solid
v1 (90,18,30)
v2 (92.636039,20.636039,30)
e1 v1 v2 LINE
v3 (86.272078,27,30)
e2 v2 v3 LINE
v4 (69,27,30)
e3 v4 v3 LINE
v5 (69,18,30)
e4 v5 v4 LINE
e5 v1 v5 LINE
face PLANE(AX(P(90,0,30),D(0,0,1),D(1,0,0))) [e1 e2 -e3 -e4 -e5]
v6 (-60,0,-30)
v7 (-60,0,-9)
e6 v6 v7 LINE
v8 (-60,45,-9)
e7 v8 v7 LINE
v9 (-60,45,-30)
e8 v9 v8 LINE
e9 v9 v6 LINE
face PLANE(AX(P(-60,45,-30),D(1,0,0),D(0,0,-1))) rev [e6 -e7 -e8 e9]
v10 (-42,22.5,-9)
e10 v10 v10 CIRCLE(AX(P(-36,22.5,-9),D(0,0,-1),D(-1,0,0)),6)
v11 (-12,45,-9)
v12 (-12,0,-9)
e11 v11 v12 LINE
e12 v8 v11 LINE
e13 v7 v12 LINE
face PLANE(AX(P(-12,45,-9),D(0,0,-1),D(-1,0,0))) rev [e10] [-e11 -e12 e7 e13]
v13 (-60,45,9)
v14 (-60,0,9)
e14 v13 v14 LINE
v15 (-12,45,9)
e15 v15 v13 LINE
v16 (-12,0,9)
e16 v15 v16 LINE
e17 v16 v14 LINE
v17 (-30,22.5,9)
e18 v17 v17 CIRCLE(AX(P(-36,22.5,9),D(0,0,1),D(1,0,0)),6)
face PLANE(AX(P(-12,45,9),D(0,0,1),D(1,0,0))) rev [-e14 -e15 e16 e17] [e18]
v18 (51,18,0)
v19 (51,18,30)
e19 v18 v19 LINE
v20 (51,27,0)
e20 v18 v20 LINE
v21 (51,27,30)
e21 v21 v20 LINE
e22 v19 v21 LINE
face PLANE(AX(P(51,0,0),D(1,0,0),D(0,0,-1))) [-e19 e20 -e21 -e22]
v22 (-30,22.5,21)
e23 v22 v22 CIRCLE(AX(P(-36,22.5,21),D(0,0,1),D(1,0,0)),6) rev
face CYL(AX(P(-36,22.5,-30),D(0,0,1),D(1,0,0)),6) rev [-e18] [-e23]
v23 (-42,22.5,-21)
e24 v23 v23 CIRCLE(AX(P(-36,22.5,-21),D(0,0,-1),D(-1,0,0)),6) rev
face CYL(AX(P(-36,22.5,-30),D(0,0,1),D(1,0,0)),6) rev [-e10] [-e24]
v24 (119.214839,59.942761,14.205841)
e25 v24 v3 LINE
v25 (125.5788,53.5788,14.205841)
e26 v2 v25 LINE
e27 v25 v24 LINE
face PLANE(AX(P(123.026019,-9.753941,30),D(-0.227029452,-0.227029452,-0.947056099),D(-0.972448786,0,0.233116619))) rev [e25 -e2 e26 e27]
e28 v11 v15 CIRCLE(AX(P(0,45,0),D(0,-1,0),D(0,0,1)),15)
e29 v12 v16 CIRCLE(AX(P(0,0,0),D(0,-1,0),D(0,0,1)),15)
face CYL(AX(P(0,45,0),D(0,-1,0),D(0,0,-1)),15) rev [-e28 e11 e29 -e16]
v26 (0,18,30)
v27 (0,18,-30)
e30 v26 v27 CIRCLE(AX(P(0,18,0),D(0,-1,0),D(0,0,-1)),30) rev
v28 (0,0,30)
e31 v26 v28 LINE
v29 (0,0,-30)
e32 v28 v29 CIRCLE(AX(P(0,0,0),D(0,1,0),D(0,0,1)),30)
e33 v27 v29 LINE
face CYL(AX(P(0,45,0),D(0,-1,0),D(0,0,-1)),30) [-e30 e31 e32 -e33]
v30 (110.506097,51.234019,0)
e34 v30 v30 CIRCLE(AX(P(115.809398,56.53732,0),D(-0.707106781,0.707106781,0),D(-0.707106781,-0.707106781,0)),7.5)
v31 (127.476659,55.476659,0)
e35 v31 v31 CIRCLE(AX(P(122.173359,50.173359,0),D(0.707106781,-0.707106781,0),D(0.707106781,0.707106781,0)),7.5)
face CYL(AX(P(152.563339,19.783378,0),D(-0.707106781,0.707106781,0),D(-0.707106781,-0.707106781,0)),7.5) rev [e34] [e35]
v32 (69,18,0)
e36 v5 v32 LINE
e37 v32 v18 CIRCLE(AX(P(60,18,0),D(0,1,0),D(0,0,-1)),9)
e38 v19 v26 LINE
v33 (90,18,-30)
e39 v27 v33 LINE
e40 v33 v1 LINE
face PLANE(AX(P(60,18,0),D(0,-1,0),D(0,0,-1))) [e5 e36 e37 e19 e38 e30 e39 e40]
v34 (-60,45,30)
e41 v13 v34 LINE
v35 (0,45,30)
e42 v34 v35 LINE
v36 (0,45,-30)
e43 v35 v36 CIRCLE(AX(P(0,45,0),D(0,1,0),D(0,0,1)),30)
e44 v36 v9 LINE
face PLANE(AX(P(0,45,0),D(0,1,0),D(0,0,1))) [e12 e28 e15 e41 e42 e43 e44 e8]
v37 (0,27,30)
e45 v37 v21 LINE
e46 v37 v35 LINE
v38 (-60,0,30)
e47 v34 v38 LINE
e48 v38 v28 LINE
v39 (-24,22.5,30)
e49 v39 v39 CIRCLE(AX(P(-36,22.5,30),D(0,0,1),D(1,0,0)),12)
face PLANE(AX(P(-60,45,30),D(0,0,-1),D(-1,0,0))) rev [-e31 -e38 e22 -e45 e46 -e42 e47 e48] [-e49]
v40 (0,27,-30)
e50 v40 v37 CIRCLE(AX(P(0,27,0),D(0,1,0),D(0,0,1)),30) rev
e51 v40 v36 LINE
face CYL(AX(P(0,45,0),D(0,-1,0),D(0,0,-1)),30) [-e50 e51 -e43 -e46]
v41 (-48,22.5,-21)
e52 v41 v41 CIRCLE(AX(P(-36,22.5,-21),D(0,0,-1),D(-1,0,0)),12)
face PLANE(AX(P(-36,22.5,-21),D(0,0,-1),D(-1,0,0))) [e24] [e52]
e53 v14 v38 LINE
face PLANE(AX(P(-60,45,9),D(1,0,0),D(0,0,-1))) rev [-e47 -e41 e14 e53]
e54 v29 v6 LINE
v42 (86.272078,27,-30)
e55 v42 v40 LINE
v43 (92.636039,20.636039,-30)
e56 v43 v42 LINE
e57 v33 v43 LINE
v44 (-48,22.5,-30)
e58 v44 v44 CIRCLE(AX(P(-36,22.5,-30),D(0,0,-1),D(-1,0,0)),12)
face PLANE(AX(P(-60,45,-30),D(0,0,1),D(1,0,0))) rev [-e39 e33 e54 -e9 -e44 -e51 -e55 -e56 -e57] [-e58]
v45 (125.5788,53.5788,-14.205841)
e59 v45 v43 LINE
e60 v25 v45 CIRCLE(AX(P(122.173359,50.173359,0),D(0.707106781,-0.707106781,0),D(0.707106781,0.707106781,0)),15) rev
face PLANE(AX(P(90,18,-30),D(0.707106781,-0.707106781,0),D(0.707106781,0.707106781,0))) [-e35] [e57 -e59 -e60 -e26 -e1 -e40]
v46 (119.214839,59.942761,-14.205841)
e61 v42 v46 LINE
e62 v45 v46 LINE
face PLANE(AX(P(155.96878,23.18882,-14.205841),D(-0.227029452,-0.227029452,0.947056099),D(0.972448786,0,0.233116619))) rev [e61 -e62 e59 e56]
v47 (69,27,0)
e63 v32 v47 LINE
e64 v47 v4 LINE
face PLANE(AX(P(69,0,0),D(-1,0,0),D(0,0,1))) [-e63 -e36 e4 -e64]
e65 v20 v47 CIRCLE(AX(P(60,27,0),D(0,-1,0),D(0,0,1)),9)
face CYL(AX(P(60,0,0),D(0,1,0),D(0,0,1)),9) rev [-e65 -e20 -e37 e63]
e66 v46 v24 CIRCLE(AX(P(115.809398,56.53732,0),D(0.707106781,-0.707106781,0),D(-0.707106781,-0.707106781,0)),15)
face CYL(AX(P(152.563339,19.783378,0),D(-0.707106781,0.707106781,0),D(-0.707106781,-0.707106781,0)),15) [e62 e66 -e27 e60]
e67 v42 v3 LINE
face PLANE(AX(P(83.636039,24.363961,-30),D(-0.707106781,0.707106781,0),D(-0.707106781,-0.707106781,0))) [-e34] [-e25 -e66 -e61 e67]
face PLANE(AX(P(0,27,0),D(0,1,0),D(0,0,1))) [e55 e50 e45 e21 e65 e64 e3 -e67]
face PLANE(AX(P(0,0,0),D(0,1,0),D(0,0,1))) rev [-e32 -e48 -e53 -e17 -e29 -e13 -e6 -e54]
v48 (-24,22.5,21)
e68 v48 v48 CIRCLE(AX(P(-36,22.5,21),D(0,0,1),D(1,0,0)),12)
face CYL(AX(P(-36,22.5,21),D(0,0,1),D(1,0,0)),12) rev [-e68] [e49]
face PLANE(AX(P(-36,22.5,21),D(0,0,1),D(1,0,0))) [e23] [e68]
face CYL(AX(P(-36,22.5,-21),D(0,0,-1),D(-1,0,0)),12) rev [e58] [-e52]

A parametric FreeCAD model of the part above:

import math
import FreeCAD as App
import Part
import Sketcher
from FreeCAD import Vector
Q = App.Units.Quantity

doc = App.newDocument("Part")
params = doc.addObject("Spreadsheet::Sheet", "Params")
for row, (alias, value) in enumerate([
    ("sketch1_radius", "15 mm"),
    ("sketch1_radius2", "30 mm"),
    ("sketch1_width", "48 mm"),
    ("sketch1_width2", "60 mm"),
    ("pad1_length", "45 mm"),
    ("sketch2_diameter", "12 mm"),
    ("sketch3_diameter", "24 mm"),
    ("sketch3_diameter2", "12 mm"),
    ("pocket2_length", "9 mm"),
    ("sketch4_diameter", "24 mm"),
    ("pocket3_length", "9 mm"),
    ("sketch5_radius", "9 mm"),
    ("sketch5_radius2", "30 mm"),
    ("sketch5_width", "21 mm"),
    ("sketch5_width2", "90 mm"),
    ("pad2_length", "45 mm"),
    ("sketch6_radius", "15 mm"),
    ("sketch6_radius2", "9 mm"),
    ("sketch6_width", "21 mm"),
    ("sketch6_width2", "90 mm"),
    ("sketch6_height", "60 mm"),
    ("pocket4_length", "18 mm"),
    ("sketch7_radius", "15 mm"),
    ("sketch7_radius2", "9 mm"),
    ("sketch7_width", "51 mm"),
    ("sketch7_width2", "90 mm"),
    ("sketch7_height", "30 mm"),
    ("pocket5_length", "18 mm"),
    ("sketch8_radius", "15 mm"),
    ("sketch8_radius2", "30 mm"),
    ("sketch8_width", "48 mm"),
    ("sketch8_width2", "60 mm"),
    ("pad3_length", "45 mm"),
    ("sketch9_diameter", "12 mm"),
    ("sketch10_diameter", "24 mm"),
    ("pocket7_length", "9 mm"),
    ("sketch11_diameter", "24 mm"),
    ("pocket8_length", "9 mm"),
    ("sketch12_length", "9 mm"),
    ("sketch12_length2", "60.5 mm"),
    ("pad4_length", "60 mm"),
    ("sketch13_radius", "15 mm"),
    ("sketch13_width", "30 mm"),
    ("sketch14_radius", "15 mm"),
    ("sketch14_width", "30 mm"),
    ("sketch15_diameter", "15 mm"),
], start=1):
    params.set(f"A{row}", alias)
    params.set(f"B{row}", "=" + value)
    params.setAlias(f"B{row}", alias)

body = doc.addObject("PartDesign::Body", "Body")

# Sketch on XZ plane
sketch1 = body.newObject("Sketcher::SketchObject", "Sketch")
sketch1.AttachmentSupport = (doc.getObject("XZ_Plane"), [""])
sketch1.MapMode = "FlatFace"
sketch1.addGeometry(Part.LineSegment(Vector(-60, -9, 0), Vector(-12, -9, 0)), False)
sketch1.addGeometry(Part.ArcOfCircle(Part.Circle(Vector(0, 0, 0), Vector(0, 0, 1), 15), math.radians(-143), math.radians(143)), False)
sketch1.addGeometry(Part.LineSegment(Vector(-12, 9, 0), Vector(-60, 9, 0)), False)
sketch1.addGeometry(Part.LineSegment(Vector(-60, 9, 0), Vector(-60, 30, 0)), False)
sketch1.addGeometry(Part.LineSegment(Vector(-60, 30, 0), Vector(0, 30, 0)), False)
sketch1.addGeometry(Part.ArcOfCircle(Part.Circle(Vector(0, 0, 0), Vector(0, 0, 1), 30), math.radians(-90), math.radians(90)), False)
sketch1.addGeometry(Part.LineSegment(Vector(0, -30, 0), Vector(-60, -30, 0)), False)
sketch1.addGeometry(Part.LineSegment(Vector(-60, -30, 0), Vector(-60, -9, 0)), False)
sketch1.addConstraint(Sketcher.Constraint("Coincident", 0, 2, 1, 1))
sketch1.addConstraint(Sketcher.Constraint("Coincident", 1, 2, 2, 1))
sketch1.addConstraint(Sketcher.Constraint("Coincident", 2, 2, 3, 1))
sketch1.addConstraint(Sketcher.Constraint("Coincident", 3, 2, 4, 1))
sketch1.addConstraint(Sketcher.Constraint("Tangent", 4, 2, 5, 2))
sketch1.addConstraint(Sketcher.Constraint("Tangent", 5, 1, 6, 1))
sketch1.addConstraint(Sketcher.Constraint("Coincident", 6, 2, 7, 1))
sketch1.addConstraint(Sketcher.Constraint("Coincident", 7, 2, 0, 1))
sketch1.addConstraint(Sketcher.Constraint("Horizontal", 0))
sketch1.addConstraint(Sketcher.Constraint("Horizontal", 2))
sketch1.addConstraint(Sketcher.Constraint("Vertical", 3))
sketch1.addConstraint(Sketcher.Constraint("Horizontal", 4))
sketch1.addConstraint(Sketcher.Constraint("Horizontal", 6))
sketch1.addConstraint(Sketcher.Constraint("Vertical", 7))
sketch1.addConstraint(Sketcher.Constraint("Coincident", 1, 3, -1, 1))
sketch1.addConstraint(Sketcher.Constraint("Coincident", 5, 3, -1, 1))
sketch1.addConstraint(Sketcher.Constraint("Symmetric", 2, 2, 7, 2, -1))
sketch1.addConstraint(Sketcher.Constraint("Radius", 1, Q("15 mm")))
sketch1.addConstraint(Sketcher.Constraint("Radius", 5, Q("30 mm")))
sketch1.addConstraint(Sketcher.Constraint("DistanceX", 0, 1, 0, 2, Q("48 mm")))
sketch1.addConstraint(Sketcher.Constraint("DistanceX", 4, 1, 4, 2, Q("60 mm")))
sketch1.setExpression("Constraints[17]", "Params.sketch1_radius")
sketch1.setExpression("Constraints[18]", "Params.sketch1_radius2")
sketch1.setExpression("Constraints[19]", "Params.sketch1_width")
sketch1.setExpression("Constraints[20]", "Params.sketch1_width2")
pad1 = body.newObject("PartDesign::Pad", "Pad")
pad1.Profile = sketch1
pad1.setExpression("Length", "Params.pad1_length")
pad1.Reversed = True

# Sketch on XY plane
sketch2 = body.newObject("Sketcher::SketchObject", "Sketch001")
sketch2.AttachmentSupport = (doc.getObject("XY_Plane"), [""])
sketch2.MapMode = "FlatFace"
sketch2.AttachmentOffset = App.Placement(Vector(0, 0, 30), App.Rotation())
sketch2.addGeometry(Part.Circle(Vector(-36, 22, 0), Vector(0, 0, 1), 6), False)
sketch2.addConstraint(Sketcher.Constraint("Diameter", 0, Q("12 mm")))
sketch2.addConstraint(Sketcher.Constraint("DistanceX", 0, 3, -1, 1, Q("36 mm")))
sketch2.addConstraint(Sketcher.Constraint("DistanceY", -1, 1, 0, 3, Q("22.5 mm")))
sketch2.setExpression("Constraints[0]", "Params.sketch2_diameter")
pocket1 = body.newObject("PartDesign::Pocket", "Pocket")
pocket1.Profile = sketch2
pocket1.Type = "ThroughAll"

# Sketch on XY plane
sketch3 = body.newObject("Sketcher::SketchObject", "Sketch002")
sketch3.AttachmentSupport = (doc.getObject("XY_Plane"), [""])
sketch3.MapMode = "FlatFace"
sketch3.AttachmentOffset = App.Placement(Vector(0, 0, 30), App.Rotation())
sketch3.addGeometry(Part.Circle(Vector(-36, 22, 0), Vector(0, 0, 1), 12), False)
sketch3.addGeometry(Part.Circle(Vector(-36, 22, 0), Vector(0, 0, 1), 6), False)
sketch3.addConstraint(Sketcher.Constraint("Coincident", 1, 3, 0, 3))
sketch3.addConstraint(Sketcher.Constraint("Diameter", 0, Q("24 mm")))
sketch3.addConstraint(Sketcher.Constraint("Diameter", 1, Q("12 mm")))
sketch3.addConstraint(Sketcher.Constraint("DistanceX", 0, 3, -1, 1, Q("36 mm")))
sketch3.addConstraint(Sketcher.Constraint("DistanceY", -1, 1, 0, 3, Q("22.5 mm")))
sketch3.setExpression("Constraints[1]", "Params.sketch3_diameter")
sketch3.setExpression("Constraints[2]", "Params.sketch3_diameter2")
pocket2 = body.newObject("PartDesign::Pocket", "Pocket001")
pocket2.Profile = sketch3
pocket2.setExpression("Length", "Params.pocket2_length")

# Sketch on XY plane
sketch4 = body.newObject("Sketcher::SketchObject", "Sketch003")
sketch4.AttachmentSupport = (doc.getObject("XY_Plane"), [""])
sketch4.MapMode = "FlatFace"
sketch4.AttachmentOffset = App.Placement(Vector(0, 0, -30), App.Rotation())
sketch4.addGeometry(Part.Circle(Vector(-36, 22, 0), Vector(0, 0, 1), 12), False)
sketch4.addConstraint(Sketcher.Constraint("Diameter", 0, Q("24 mm")))
sketch4.addConstraint(Sketcher.Constraint("DistanceX", 0, 3, -1, 1, Q("36 mm")))
sketch4.addConstraint(Sketcher.Constraint("DistanceY", -1, 1, 0, 3, Q("22.5 mm")))
sketch4.setExpression("Constraints[0]", "Params.sketch4_diameter")
pocket3 = body.newObject("PartDesign::Pocket", "Pocket002")
pocket3.Profile = sketch4
pocket3.setExpression("Length", "Params.pocket3_length")
pocket3.Reversed = True

# Sketch on XZ plane
sketch5 = body.newObject("Sketcher::SketchObject", "Sketch004")
sketch5.AttachmentSupport = (doc.getObject("XZ_Plane"), [""])
sketch5.MapMode = "FlatFace"
sketch5.AttachmentOffset = App.Placement(Vector(0, 0, -45), App.Rotation())
sketch5.addGeometry(Part.LineSegment(Vector(51, 30, 0), Vector(51, 0, 0)), False)
sketch5.addGeometry(Part.ArcOfCircle(Part.Circle(Vector(60, 0, 0), Vector(0, 0, 1), 9), math.radians(180), math.radians(360)), False)
sketch5.addGeometry(Part.LineSegment(Vector(69, 0, 0), Vector(69, 30, 0)), False)
sketch5.addGeometry(Part.LineSegment(Vector(69, 30, 0), Vector(90, 30, 0)), False)
sketch5.addGeometry(Part.LineSegment(Vector(90, 30, 0), Vector(90, -30, 0)), False)
sketch5.addGeometry(Part.LineSegment(Vector(90, -30, 0), Vector(0, -30, 0)), False)
sketch5.addGeometry(Part.ArcOfCircle(Part.Circle(Vector(0, 0, 0), Vector(0, 0, 1), 30), math.radians(-90), math.radians(90)), False)
sketch5.addGeometry(Part.LineSegment(Vector(0, 30, 0), Vector(51, 30, 0)), False)
sketch5.addConstraint(Sketcher.Constraint("Tangent", 0, 2, 1, 1))
sketch5.addConstraint(Sketcher.Constraint("Tangent", 1, 2, 2, 1))
sketch5.addConstraint(Sketcher.Constraint("Coincident", 2, 2, 3, 1))
sketch5.addConstraint(Sketcher.Constraint("Coincident", 3, 2, 4, 1))
sketch5.addConstraint(Sketcher.Constraint("Coincident", 4, 2, 5, 1))
sketch5.addConstraint(Sketcher.Constraint("Tangent", 5, 2, 6, 1))
sketch5.addConstraint(Sketcher.Constraint("Tangent", 6, 2, 7, 1))
sketch5.addConstraint(Sketcher.Constraint("Coincident", 7, 2, 0, 1))
sketch5.addConstraint(Sketcher.Constraint("Vertical", 0))
sketch5.addConstraint(Sketcher.Constraint("Vertical", 2))
sketch5.addConstraint(Sketcher.Constraint("Horizontal", 3))
sketch5.addConstraint(Sketcher.Constraint("Vertical", 4))
sketch5.addConstraint(Sketcher.Constraint("Horizontal", 5))
sketch5.addConstraint(Sketcher.Constraint("Horizontal", 7))
sketch5.addConstraint(Sketcher.Constraint("Coincident", 6, 3, -1, 1))
sketch5.addConstraint(Sketcher.Constraint("PointOnObject", 1, 3, -1))
sketch5.addConstraint(Sketcher.Constraint("Horizontal", 3, 2, 6, 2))
sketch5.addConstraint(Sketcher.Constraint("Radius", 1, Q("9 mm")))
sketch5.addConstraint(Sketcher.Constraint("Radius", 6, Q("30 mm")))
sketch5.addConstraint(Sketcher.Constraint("DistanceX", 3, 1, 3, 2, Q("21 mm")))
sketch5.addConstraint(Sketcher.Constraint("DistanceX", 5, 2, 5, 1, Q("90 mm")))
sketch5.setExpression("Constraints[17]", "Params.sketch5_radius")
sketch5.setExpression("Constraints[18]", "Params.sketch5_radius2")
sketch5.setExpression("Constraints[19]", "Params.sketch5_width")
sketch5.setExpression("Constraints[20]", "Params.sketch5_width2")
pad2 = body.newObject("PartDesign::Pad", "Pad001")
pad2.Profile = sketch5
pad2.setExpression("Length", "Params.pad2_length")

# Sketch on XZ plane
sketch6 = body.newObject("Sketcher::SketchObject", "Sketch005")
sketch6.AttachmentSupport = (doc.getObject("XZ_Plane"), [""])
sketch6.MapMode = "FlatFace"
sketch6.AttachmentOffset = App.Placement(Vector(0, 0, -45), App.Rotation())
sketch6.addGeometry(Part.LineSegment(Vector(69, 30, 0), Vector(90, 30, 0)), False)
sketch6.addGeometry(Part.LineSegment(Vector(90, 30, 0), Vector(90, -30, 0)), False)
sketch6.addGeometry(Part.LineSegment(Vector(90, -30, 0), Vector(0, -30, 0)), False)
sketch6.addGeometry(Part.LineSegment(Vector(0, -30, 0), Vector(0, -15, 0)), False)
sketch6.addGeometry(Part.ArcOfCircle(Part.Circle(Vector(0, 0, 0), Vector(0, 0, 1), 15), math.radians(-90), math.radians(90)), False)
sketch6.addGeometry(Part.LineSegment(Vector(0, 15, 0), Vector(0, 30, 0)), False)
sketch6.addGeometry(Part.LineSegment(Vector(0, 30, 0), Vector(51, 30, 0)), False)
sketch6.addGeometry(Part.LineSegment(Vector(51, 30, 0), Vector(51, 0, 0)), False)
sketch6.addGeometry(Part.ArcOfCircle(Part.Circle(Vector(60, 0, 0), Vector(0, 0, 1), 9), math.radians(180), math.radians(360)), False)
sketch6.addGeometry(Part.LineSegment(Vector(69, 0, 0), Vector(69, 30, 0)), False)
sketch6.addConstraint(Sketcher.Constraint("Coincident", 0, 2, 1, 1))
sketch6.addConstraint(Sketcher.Constraint("Coincident", 1, 2, 2, 1))
sketch6.addConstraint(Sketcher.Constraint("Coincident", 2, 2, 3, 1))
sketch6.addConstraint(Sketcher.Constraint("Coincident", 3, 2, 4, 1))
sketch6.addConstraint(Sketcher.Constraint("Coincident", 4, 2, 5, 1))
sketch6.addConstraint(Sketcher.Constraint("Coincident", 5, 2, 6, 1))
sketch6.addConstraint(Sketcher.Constraint("Coincident", 6, 2, 7, 1))
sketch6.addConstraint(Sketcher.Constraint("Tangent", 7, 2, 8, 1))
sketch6.addConstraint(Sketcher.Constraint("Tangent", 8, 2, 9, 1))
sketch6.addConstraint(Sketcher.Constraint("Coincident", 9, 2, 0, 1))
sketch6.addConstraint(Sketcher.Constraint("Horizontal", 0))
sketch6.addConstraint(Sketcher.Constraint("Vertical", 1))
sketch6.addConstraint(Sketcher.Constraint("Horizontal", 2))
sketch6.addConstraint(Sketcher.Constraint("Vertical", 3))
sketch6.addConstraint(Sketcher.Constraint("Vertical", 5))
sketch6.addConstraint(Sketcher.Constraint("Horizontal", 6))
sketch6.addConstraint(Sketcher.Constraint("Vertical", 7))
sketch6.addConstraint(Sketcher.Constraint("Vertical", 9))
sketch6.addConstraint(Sketcher.Constraint("Coincident", 4, 3, -1, 1))
sketch6.addConstraint(Sketcher.Constraint("Symmetric", 2, 2, 5, 2, -1, 1))
sketch6.addConstraint(Sketcher.Constraint("PointOnObject", 8, 3, -1))
sketch6.addConstraint(Sketcher.Constraint("PointOnObject", 2, 2, -2))
sketch6.addConstraint(Sketcher.Constraint("Horizontal", 0, 2, 5, 2))
sketch6.addConstraint(Sketcher.Constraint("Radius", 4, Q("15 mm")))
sketch6.addConstraint(Sketcher.Constraint("Radius", 8, Q("9 mm")))
sketch6.addConstraint(Sketcher.Constraint("DistanceX", 0, 1, 0, 2, Q("21 mm")))
sketch6.addConstraint(Sketcher.Constraint("DistanceX", 2, 2, 2, 1, Q("90 mm")))
sketch6.addConstraint(Sketcher.Constraint("DistanceY", 1, 2, 1, 1, Q("60 mm")))
sketch6.setExpression("Constraints[23]", "Params.sketch6_radius")
sketch6.setExpression("Constraints[24]", "Params.sketch6_radius2")
sketch6.setExpression("Constraints[25]", "Params.sketch6_width")
sketch6.setExpression("Constraints[26]", "Params.sketch6_width2")
sketch6.setExpression("Constraints[27]", "Params.sketch6_height")
pocket4 = body.newObject("PartDesign::Pocket", "Pocket003")
pocket4.Profile = sketch6
pocket4.setExpression("Length", "Params.pocket4_length")
pocket4.Reversed = True

# Sketch on XZ plane
sketch7 = body.newObject("Sketcher::SketchObject", "Sketch006")
sketch7.AttachmentSupport = (doc.getObject("XZ_Plane"), [""])
sketch7.MapMode = "FlatFace"
sketch7.addGeometry(Part.LineSegment(Vector(51, 0, 0), Vector(51, 30, 0)), False)
sketch7.addGeometry(Part.LineSegment(Vector(51, 30, 0), Vector(0, 30, 0)), False)
sketch7.addGeometry(Part.LineSegment(Vector(0, 30, 0), Vector(0, 15, 0)), False)
sketch7.addGeometry(Part.ArcOfCircle(Part.Circle(Vector(0, 0, 0), Vector(0, 0, 1), 15), math.radians(-90), math.radians(90)), False)
sketch7.addGeometry(Part.LineSegment(Vector(0, -15, 0), Vector(0, -30, 0)), False)
sketch7.addGeometry(Part.LineSegment(Vector(0, -30, 0), Vector(90, -30, 0)), False)
sketch7.addGeometry(Part.LineSegment(Vector(90, -30, 0), Vector(90, 30, 0)), False)
sketch7.addGeometry(Part.LineSegment(Vector(90, 30, 0), Vector(69, 30, 0)), False)
sketch7.addGeometry(Part.LineSegment(Vector(69, 30, 0), Vector(69, 0, 0)), False)
sketch7.addGeometry(Part.ArcOfCircle(Part.Circle(Vector(60, 0, 0), Vector(0, 0, 1), 9), math.radians(180), math.radians(360)), False)
sketch7.addConstraint(Sketcher.Constraint("Coincident", 0, 2, 1, 1))
sketch7.addConstraint(Sketcher.Constraint("Coincident", 1, 2, 2, 1))
sketch7.addConstraint(Sketcher.Constraint("Coincident", 2, 2, 3, 2))
sketch7.addConstraint(Sketcher.Constraint("Coincident", 3, 1, 4, 1))
sketch7.addConstraint(Sketcher.Constraint("Coincident", 4, 2, 5, 1))
sketch7.addConstraint(Sketcher.Constraint("Coincident", 5, 2, 6, 1))
sketch7.addConstraint(Sketcher.Constraint("Coincident", 6, 2, 7, 1))
sketch7.addConstraint(Sketcher.Constraint("Coincident", 7, 2, 8, 1))
sketch7.addConstraint(Sketcher.Constraint("Tangent", 8, 2, 9, 2))
sketch7.addConstraint(Sketcher.Constraint("Tangent", 9, 1, 0, 1))
sketch7.addConstraint(Sketcher.Constraint("Vertical", 0))
sketch7.addConstraint(Sketcher.Constraint("Horizontal", 1))
sketch7.addConstraint(Sketcher.Constraint("Vertical", 2))
sketch7.addConstraint(Sketcher.Constraint("Vertical", 4))
sketch7.addConstraint(Sketcher.Constraint("Horizontal", 5))
sketch7.addConstraint(Sketcher.Constraint("Vertical", 6))
sketch7.addConstraint(Sketcher.Constraint("Horizontal", 7))
sketch7.addConstraint(Sketcher.Constraint("Vertical", 8))
sketch7.addConstraint(Sketcher.Constraint("Coincident", 3, 3, -1, 1))
sketch7.addConstraint(Sketcher.Constraint("Symmetric", 1, 2, 4, 2, -1, 1))
sketch7.addConstraint(Sketcher.Constraint("PointOnObject", 9, 3, -1))
sketch7.addConstraint(Sketcher.Constraint("PointOnObject", 1, 2, -2))
sketch7.addConstraint(Sketcher.Constraint("Horizontal", 1, 2, 6, 2))
sketch7.addConstraint(Sketcher.Constraint("Radius", 3, Q("15 mm")))
sketch7.addConstraint(Sketcher.Constraint("Radius", 9, Q("9 mm")))
sketch7.addConstraint(Sketcher.Constraint("DistanceX", 1, 2, 1, 1, Q("51 mm")))
sketch7.addConstraint(Sketcher.Constraint("DistanceX", 5, 1, 5, 2, Q("90 mm")))
sketch7.addConstraint(Sketcher.Constraint("DistanceY", 0, 1, 0, 2, Q("30 mm")))
sketch7.setExpression("Constraints[23]", "Params.sketch7_radius")
sketch7.setExpression("Constraints[24]", "Params.sketch7_radius2")
sketch7.setExpression("Constraints[25]", "Params.sketch7_width")
sketch7.setExpression("Constraints[26]", "Params.sketch7_width2")
sketch7.setExpression("Constraints[27]", "Params.sketch7_height")
pocket5 = body.newObject("PartDesign::Pocket", "Pocket004")
pocket5.Profile = sketch7
pocket5.setExpression("Length", "Params.pocket5_length")

# Sketch on XZ plane
sketch8 = body.newObject("Sketcher::SketchObject", "Sketch007")
sketch8.AttachmentSupport = (doc.getObject("XZ_Plane"), [""])
sketch8.MapMode = "FlatFace"
sketch8.addGeometry(Part.LineSegment(Vector(-60, -9, 0), Vector(-12, -9, 0)), False)
sketch8.addGeometry(Part.ArcOfCircle(Part.Circle(Vector(0, 0, 0), Vector(0, 0, 1), 15), math.radians(-143), math.radians(143)), False)
sketch8.addGeometry(Part.LineSegment(Vector(-12, 9, 0), Vector(-60, 9, 0)), False)
sketch8.addGeometry(Part.LineSegment(Vector(-60, 9, 0), Vector(-60, 30, 0)), False)
sketch8.addGeometry(Part.LineSegment(Vector(-60, 30, 0), Vector(0, 30, 0)), False)
sketch8.addGeometry(Part.ArcOfCircle(Part.Circle(Vector(0, 0, 0), Vector(0, 0, 1), 30), math.radians(-90), math.radians(90)), False)
sketch8.addGeometry(Part.LineSegment(Vector(0, -30, 0), Vector(-60, -30, 0)), False)
sketch8.addGeometry(Part.LineSegment(Vector(-60, -30, 0), Vector(-60, -9, 0)), False)
sketch8.addConstraint(Sketcher.Constraint("Coincident", 0, 2, 1, 1))
sketch8.addConstraint(Sketcher.Constraint("Coincident", 1, 2, 2, 1))
sketch8.addConstraint(Sketcher.Constraint("Coincident", 2, 2, 3, 1))
sketch8.addConstraint(Sketcher.Constraint("Coincident", 3, 2, 4, 1))
sketch8.addConstraint(Sketcher.Constraint("Tangent", 4, 2, 5, 2))
sketch8.addConstraint(Sketcher.Constraint("Tangent", 5, 1, 6, 1))
sketch8.addConstraint(Sketcher.Constraint("Coincident", 6, 2, 7, 1))
sketch8.addConstraint(Sketcher.Constraint("Coincident", 7, 2, 0, 1))
sketch8.addConstraint(Sketcher.Constraint("Horizontal", 0))
sketch8.addConstraint(Sketcher.Constraint("Horizontal", 2))
sketch8.addConstraint(Sketcher.Constraint("Vertical", 3))
sketch8.addConstraint(Sketcher.Constraint("Horizontal", 4))
sketch8.addConstraint(Sketcher.Constraint("Horizontal", 6))
sketch8.addConstraint(Sketcher.Constraint("Vertical", 7))
sketch8.addConstraint(Sketcher.Constraint("Coincident", 1, 3, -1, 1))
sketch8.addConstraint(Sketcher.Constraint("Coincident", 5, 3, -1, 1))
sketch8.addConstraint(Sketcher.Constraint("Symmetric", 2, 2, 7, 2, -1))
sketch8.addConstraint(Sketcher.Constraint("Radius", 1, Q("15 mm")))
sketch8.addConstraint(Sketcher.Constraint("Radius", 5, Q("30 mm")))
sketch8.addConstraint(Sketcher.Constraint("DistanceX", 0, 1, 0, 2, Q("48 mm")))
sketch8.addConstraint(Sketcher.Constraint("DistanceX", 4, 1, 4, 2, Q("60 mm")))
sketch8.setExpression("Constraints[17]", "Params.sketch8_radius")
sketch8.setExpression("Constraints[18]", "Params.sketch8_radius2")
sketch8.setExpression("Constraints[19]", "Params.sketch8_width")
sketch8.setExpression("Constraints[20]", "Params.sketch8_width2")
pad3 = body.newObject("PartDesign::Pad", "Pad002")
pad3.Profile = sketch8
pad3.setExpression("Length", "Params.pad3_length")
pad3.Reversed = True

# Sketch on XY plane
sketch9 = body.newObject("Sketcher::SketchObject", "Sketch008")
sketch9.AttachmentSupport = (doc.getObject("XY_Plane"), [""])
sketch9.MapMode = "FlatFace"
sketch9.AttachmentOffset = App.Placement(Vector(0, 0, 30), App.Rotation())
sketch9.addGeometry(Part.Circle(Vector(-36, 22, 0), Vector(0, 0, 1), 6), False)
sketch9.addConstraint(Sketcher.Constraint("Diameter", 0, Q("12 mm")))
sketch9.addConstraint(Sketcher.Constraint("DistanceX", 0, 3, -1, 1, Q("36 mm")))
sketch9.addConstraint(Sketcher.Constraint("DistanceY", -1, 1, 0, 3, Q("22.5 mm")))
sketch9.setExpression("Constraints[0]", "Params.sketch9_diameter")
pocket6 = body.newObject("PartDesign::Pocket", "Pocket005")
pocket6.Profile = sketch9
pocket6.Type = "ThroughAll"

# Sketch on XY plane
sketch10 = body.newObject("Sketcher::SketchObject", "Sketch009")
sketch10.AttachmentSupport = (doc.getObject("XY_Plane"), [""])
sketch10.MapMode = "FlatFace"
sketch10.AttachmentOffset = App.Placement(Vector(0, 0, 30), App.Rotation())
sketch10.addGeometry(Part.Circle(Vector(-36, 22, 0), Vector(0, 0, 1), 12), False)
sketch10.addConstraint(Sketcher.Constraint("Diameter", 0, Q("24 mm")))
sketch10.addConstraint(Sketcher.Constraint("DistanceX", 0, 3, -1, 1, Q("36 mm")))
sketch10.addConstraint(Sketcher.Constraint("DistanceY", -1, 1, 0, 3, Q("22.5 mm")))
sketch10.setExpression("Constraints[0]", "Params.sketch10_diameter")
pocket7 = body.newObject("PartDesign::Pocket", "Pocket006")
pocket7.Profile = sketch10
pocket7.setExpression("Length", "Params.pocket7_length")

# Sketch on XY plane
sketch11 = body.newObject("Sketcher::SketchObject", "Sketch010")
sketch11.AttachmentSupport = (doc.getObject("XY_Plane"), [""])
sketch11.MapMode = "FlatFace"
sketch11.AttachmentOffset = App.Placement(Vector(0, 0, -30), App.Rotation())
sketch11.addGeometry(Part.Circle(Vector(-36, 22, 0), Vector(0, 0, 1), 12), False)
sketch11.addConstraint(Sketcher.Constraint("Diameter", 0, Q("24 mm")))
sketch11.addConstraint(Sketcher.Constraint("DistanceX", 0, 3, -1, 1, Q("36 mm")))
sketch11.addConstraint(Sketcher.Constraint("DistanceY", -1, 1, 0, 3, Q("22.5 mm")))
sketch11.setExpression("Constraints[0]", "Params.sketch11_diameter")
pocket8 = body.newObject("PartDesign::Pocket", "Pocket007")
pocket8.Profile = sketch11
pocket8.setExpression("Length", "Params.pocket8_length")
pocket8.Reversed = True

# Sketch on XY plane
sketch12 = body.newObject("Sketcher::SketchObject", "Sketch011")
sketch12.AttachmentSupport = (doc.getObject("XY_Plane"), [""])
sketch12.MapMode = "FlatFace"
sketch12.AttachmentOffset = App.Placement(Vector(0, 0, 30), App.Rotation())
sketch12.addGeometry(Part.LineSegment(Vector(90, 18, 0), Vector(133, 61, 0)), False)
sketch12.addGeometry(Part.LineSegment(Vector(133, 61, 0), Vector(126, 67, 0)), False)
sketch12.addGeometry(Part.LineSegment(Vector(126, 67, 0), Vector(84, 24, 0)), False)
sketch12.addGeometry(Part.LineSegment(Vector(84, 24, 0), Vector(90, 18, 0)), False)
sketch12.addConstraint(Sketcher.Constraint("Coincident", 0, 2, 1, 1))
sketch12.addConstraint(Sketcher.Constraint("Coincident", 1, 2, 2, 1))
sketch12.addConstraint(Sketcher.Constraint("Coincident", 2, 2, 3, 1))
sketch12.addConstraint(Sketcher.Constraint("Coincident", 3, 2, 0, 1))
sketch12.addConstraint(Sketcher.Constraint("Perpendicular", 0, 1))
sketch12.addConstraint(Sketcher.Constraint("Perpendicular", 1, 2))
sketch12.addConstraint(Sketcher.Constraint("Perpendicular", 2, 3))
sketch12.addConstraint(Sketcher.Constraint("Angle", 0, Q("45 deg")))
sketch12.addConstraint(Sketcher.Constraint("Distance", 1, Q("9 mm")))
sketch12.addConstraint(Sketcher.Constraint("DistanceX", -1, 1, 3, 2, Q("90 mm")))
sketch12.addConstraint(Sketcher.Constraint("DistanceY", -1, 1, 3, 2, Q("18 mm")))
sketch12.addConstraint(Sketcher.Constraint("Distance", 0, Q("60.5 mm")))
sketch12.setExpression("Constraints[8]", "Params.sketch12_length")
sketch12.setExpression("Constraints[11]", "Params.sketch12_length2")
pad4 = body.newObject("PartDesign::Pad", "Pad003")
pad4.Profile = sketch12
pad4.setExpression("Length", "Params.pad4_length")
pad4.Reversed = True

# Sketch on an angled plane
sketch13 = body.newObject("Sketcher::SketchObject", "Sketch012")
sketch13.Placement = App.Placement(Vector(29.636039, -29.636039, 0), App.Rotation(Vector(0, 0, 1), Vector(0.707106781, 0.707106781, 0), Vector(-0.707106781, 0.707106781, 0), "ZXY"))
sketch13.addGeometry(Part.LineSegment(Vector(-30, 137, 0), Vector(-30, 80, 0)), False)
sketch13.addGeometry(Part.LineSegment(Vector(-30, 80, 0), Vector(-14, 127, 0)), False)
sketch13.addGeometry(Part.ArcOfCircle(Part.Circle(Vector(0, 122, 0), Vector(0, 0, 1), 15), math.radians(90), math.radians(161)), False)
sketch13.addGeometry(Part.LineSegment(Vector(0, 137, 0), Vector(-30, 137, 0)), False)
sketch13.addConstraint(Sketcher.Constraint("Coincident", 0, 2, 1, 1))
sketch13.addConstraint(Sketcher.Constraint("Tangent", 1, 2, 2, 2))
sketch13.addConstraint(Sketcher.Constraint("Tangent", 2, 1, 3, 1))
sketch13.addConstraint(Sketcher.Constraint("Coincident", 3, 2, 0, 1))
sketch13.addConstraint(Sketcher.Constraint("Vertical", 0))
sketch13.addConstraint(Sketcher.Constraint("Horizontal", 3))
sketch13.addConstraint(Sketcher.Constraint("PointOnObject", 2, 3, -2))
sketch13.addConstraint(Sketcher.Constraint("Radius", 2, Q("15 mm")))
sketch13.addConstraint(Sketcher.Constraint("DistanceX", 3, 2, 3, 1, Q("30 mm")))
sketch13.addConstraint(Sketcher.Constraint("DistanceY", 0, 2, 1, 2, Q("46.5881 mm")))
sketch13.addConstraint(Sketcher.Constraint("DistanceY", -1, 1, 2, 3, Q("121.867532 mm")))
sketch13.setExpression("Constraints[7]", "Params.sketch13_radius")
sketch13.setExpression("Constraints[8]", "Params.sketch13_width")
pocket9 = body.newObject("PartDesign::Pocket", "Pocket008")
pocket9.Profile = sketch13
pocket9.Type = "ThroughAll"

# Sketch on an angled plane
sketch14 = body.newObject("Sketcher::SketchObject", "Sketch013")
sketch14.Placement = App.Placement(Vector(29.636039, -29.636039, 0), App.Rotation(Vector(0, 0, 1), Vector(0.707106781, 0.707106781, 0), Vector(-0.707106781, 0.707106781, 0), "ZXY"))
sketch14.addGeometry(Part.LineSegment(Vector(14, 127, 0), Vector(30, 80, 0)), False)
sketch14.addGeometry(Part.LineSegment(Vector(30, 80, 0), Vector(30, 137, 0)), False)
sketch14.addGeometry(Part.LineSegment(Vector(30, 137, 0), Vector(0, 137, 0)), False)
sketch14.addGeometry(Part.ArcOfCircle(Part.Circle(Vector(0, 122, 0), Vector(0, 0, 1), 15), math.radians(19), math.radians(90)), False)
sketch14.addConstraint(Sketcher.Constraint("Coincident", 0, 2, 1, 1))
sketch14.addConstraint(Sketcher.Constraint("Coincident", 1, 2, 2, 1))
sketch14.addConstraint(Sketcher.Constraint("Tangent", 2, 2, 3, 2))
sketch14.addConstraint(Sketcher.Constraint("Tangent", 3, 1, 0, 1))
sketch14.addConstraint(Sketcher.Constraint("Vertical", 1))
sketch14.addConstraint(Sketcher.Constraint("Horizontal", 2))
sketch14.addConstraint(Sketcher.Constraint("PointOnObject", 3, 3, -2))
sketch14.addConstraint(Sketcher.Constraint("Radius", 3, Q("15 mm")))
sketch14.addConstraint(Sketcher.Constraint("DistanceX", 2, 2, 2, 1, Q("30 mm")))
sketch14.addConstraint(Sketcher.Constraint("DistanceY", 0, 2, 3, 1, Q("46.5881 mm")))
sketch14.addConstraint(Sketcher.Constraint("DistanceY", -1, 1, 3, 3, Q("121.867532 mm")))
sketch14.setExpression("Constraints[7]", "Params.sketch14_radius")
sketch14.setExpression("Constraints[8]", "Params.sketch14_width")
pocket10 = body.newObject("PartDesign::Pocket", "Pocket009")
pocket10.Profile = sketch14
pocket10.Type = "ThroughAll"

# Sketch on an angled plane
sketch15 = body.newObject("Sketcher::SketchObject", "Sketch014")
sketch15.Placement = App.Placement(Vector(29.636039, -29.636039, 0), App.Rotation(Vector(0, 0, 1), Vector(0.707106781, 0.707106781, 0), Vector(-0.707106781, 0.707106781, 0), "ZXY"))
sketch15.addGeometry(Part.Circle(Vector(0, 122, 0), Vector(0, 0, 1), 8), False)
sketch15.addConstraint(Sketcher.Constraint("PointOnObject", 0, 3, -2))
sketch15.addConstraint(Sketcher.Constraint("Diameter", 0, Q("15 mm")))
sketch15.addConstraint(Sketcher.Constraint("DistanceY", -1, 1, 0, 3, Q("121.867532 mm")))
sketch15.setExpression("Constraints[1]", "Params.sketch15_diameter")
pocket11 = body.newObject("PartDesign::Pocket", "Pocket010")
pocket11.Profile = sketch15
pocket11.Type = "ThroughAll"

doc.recompute()
